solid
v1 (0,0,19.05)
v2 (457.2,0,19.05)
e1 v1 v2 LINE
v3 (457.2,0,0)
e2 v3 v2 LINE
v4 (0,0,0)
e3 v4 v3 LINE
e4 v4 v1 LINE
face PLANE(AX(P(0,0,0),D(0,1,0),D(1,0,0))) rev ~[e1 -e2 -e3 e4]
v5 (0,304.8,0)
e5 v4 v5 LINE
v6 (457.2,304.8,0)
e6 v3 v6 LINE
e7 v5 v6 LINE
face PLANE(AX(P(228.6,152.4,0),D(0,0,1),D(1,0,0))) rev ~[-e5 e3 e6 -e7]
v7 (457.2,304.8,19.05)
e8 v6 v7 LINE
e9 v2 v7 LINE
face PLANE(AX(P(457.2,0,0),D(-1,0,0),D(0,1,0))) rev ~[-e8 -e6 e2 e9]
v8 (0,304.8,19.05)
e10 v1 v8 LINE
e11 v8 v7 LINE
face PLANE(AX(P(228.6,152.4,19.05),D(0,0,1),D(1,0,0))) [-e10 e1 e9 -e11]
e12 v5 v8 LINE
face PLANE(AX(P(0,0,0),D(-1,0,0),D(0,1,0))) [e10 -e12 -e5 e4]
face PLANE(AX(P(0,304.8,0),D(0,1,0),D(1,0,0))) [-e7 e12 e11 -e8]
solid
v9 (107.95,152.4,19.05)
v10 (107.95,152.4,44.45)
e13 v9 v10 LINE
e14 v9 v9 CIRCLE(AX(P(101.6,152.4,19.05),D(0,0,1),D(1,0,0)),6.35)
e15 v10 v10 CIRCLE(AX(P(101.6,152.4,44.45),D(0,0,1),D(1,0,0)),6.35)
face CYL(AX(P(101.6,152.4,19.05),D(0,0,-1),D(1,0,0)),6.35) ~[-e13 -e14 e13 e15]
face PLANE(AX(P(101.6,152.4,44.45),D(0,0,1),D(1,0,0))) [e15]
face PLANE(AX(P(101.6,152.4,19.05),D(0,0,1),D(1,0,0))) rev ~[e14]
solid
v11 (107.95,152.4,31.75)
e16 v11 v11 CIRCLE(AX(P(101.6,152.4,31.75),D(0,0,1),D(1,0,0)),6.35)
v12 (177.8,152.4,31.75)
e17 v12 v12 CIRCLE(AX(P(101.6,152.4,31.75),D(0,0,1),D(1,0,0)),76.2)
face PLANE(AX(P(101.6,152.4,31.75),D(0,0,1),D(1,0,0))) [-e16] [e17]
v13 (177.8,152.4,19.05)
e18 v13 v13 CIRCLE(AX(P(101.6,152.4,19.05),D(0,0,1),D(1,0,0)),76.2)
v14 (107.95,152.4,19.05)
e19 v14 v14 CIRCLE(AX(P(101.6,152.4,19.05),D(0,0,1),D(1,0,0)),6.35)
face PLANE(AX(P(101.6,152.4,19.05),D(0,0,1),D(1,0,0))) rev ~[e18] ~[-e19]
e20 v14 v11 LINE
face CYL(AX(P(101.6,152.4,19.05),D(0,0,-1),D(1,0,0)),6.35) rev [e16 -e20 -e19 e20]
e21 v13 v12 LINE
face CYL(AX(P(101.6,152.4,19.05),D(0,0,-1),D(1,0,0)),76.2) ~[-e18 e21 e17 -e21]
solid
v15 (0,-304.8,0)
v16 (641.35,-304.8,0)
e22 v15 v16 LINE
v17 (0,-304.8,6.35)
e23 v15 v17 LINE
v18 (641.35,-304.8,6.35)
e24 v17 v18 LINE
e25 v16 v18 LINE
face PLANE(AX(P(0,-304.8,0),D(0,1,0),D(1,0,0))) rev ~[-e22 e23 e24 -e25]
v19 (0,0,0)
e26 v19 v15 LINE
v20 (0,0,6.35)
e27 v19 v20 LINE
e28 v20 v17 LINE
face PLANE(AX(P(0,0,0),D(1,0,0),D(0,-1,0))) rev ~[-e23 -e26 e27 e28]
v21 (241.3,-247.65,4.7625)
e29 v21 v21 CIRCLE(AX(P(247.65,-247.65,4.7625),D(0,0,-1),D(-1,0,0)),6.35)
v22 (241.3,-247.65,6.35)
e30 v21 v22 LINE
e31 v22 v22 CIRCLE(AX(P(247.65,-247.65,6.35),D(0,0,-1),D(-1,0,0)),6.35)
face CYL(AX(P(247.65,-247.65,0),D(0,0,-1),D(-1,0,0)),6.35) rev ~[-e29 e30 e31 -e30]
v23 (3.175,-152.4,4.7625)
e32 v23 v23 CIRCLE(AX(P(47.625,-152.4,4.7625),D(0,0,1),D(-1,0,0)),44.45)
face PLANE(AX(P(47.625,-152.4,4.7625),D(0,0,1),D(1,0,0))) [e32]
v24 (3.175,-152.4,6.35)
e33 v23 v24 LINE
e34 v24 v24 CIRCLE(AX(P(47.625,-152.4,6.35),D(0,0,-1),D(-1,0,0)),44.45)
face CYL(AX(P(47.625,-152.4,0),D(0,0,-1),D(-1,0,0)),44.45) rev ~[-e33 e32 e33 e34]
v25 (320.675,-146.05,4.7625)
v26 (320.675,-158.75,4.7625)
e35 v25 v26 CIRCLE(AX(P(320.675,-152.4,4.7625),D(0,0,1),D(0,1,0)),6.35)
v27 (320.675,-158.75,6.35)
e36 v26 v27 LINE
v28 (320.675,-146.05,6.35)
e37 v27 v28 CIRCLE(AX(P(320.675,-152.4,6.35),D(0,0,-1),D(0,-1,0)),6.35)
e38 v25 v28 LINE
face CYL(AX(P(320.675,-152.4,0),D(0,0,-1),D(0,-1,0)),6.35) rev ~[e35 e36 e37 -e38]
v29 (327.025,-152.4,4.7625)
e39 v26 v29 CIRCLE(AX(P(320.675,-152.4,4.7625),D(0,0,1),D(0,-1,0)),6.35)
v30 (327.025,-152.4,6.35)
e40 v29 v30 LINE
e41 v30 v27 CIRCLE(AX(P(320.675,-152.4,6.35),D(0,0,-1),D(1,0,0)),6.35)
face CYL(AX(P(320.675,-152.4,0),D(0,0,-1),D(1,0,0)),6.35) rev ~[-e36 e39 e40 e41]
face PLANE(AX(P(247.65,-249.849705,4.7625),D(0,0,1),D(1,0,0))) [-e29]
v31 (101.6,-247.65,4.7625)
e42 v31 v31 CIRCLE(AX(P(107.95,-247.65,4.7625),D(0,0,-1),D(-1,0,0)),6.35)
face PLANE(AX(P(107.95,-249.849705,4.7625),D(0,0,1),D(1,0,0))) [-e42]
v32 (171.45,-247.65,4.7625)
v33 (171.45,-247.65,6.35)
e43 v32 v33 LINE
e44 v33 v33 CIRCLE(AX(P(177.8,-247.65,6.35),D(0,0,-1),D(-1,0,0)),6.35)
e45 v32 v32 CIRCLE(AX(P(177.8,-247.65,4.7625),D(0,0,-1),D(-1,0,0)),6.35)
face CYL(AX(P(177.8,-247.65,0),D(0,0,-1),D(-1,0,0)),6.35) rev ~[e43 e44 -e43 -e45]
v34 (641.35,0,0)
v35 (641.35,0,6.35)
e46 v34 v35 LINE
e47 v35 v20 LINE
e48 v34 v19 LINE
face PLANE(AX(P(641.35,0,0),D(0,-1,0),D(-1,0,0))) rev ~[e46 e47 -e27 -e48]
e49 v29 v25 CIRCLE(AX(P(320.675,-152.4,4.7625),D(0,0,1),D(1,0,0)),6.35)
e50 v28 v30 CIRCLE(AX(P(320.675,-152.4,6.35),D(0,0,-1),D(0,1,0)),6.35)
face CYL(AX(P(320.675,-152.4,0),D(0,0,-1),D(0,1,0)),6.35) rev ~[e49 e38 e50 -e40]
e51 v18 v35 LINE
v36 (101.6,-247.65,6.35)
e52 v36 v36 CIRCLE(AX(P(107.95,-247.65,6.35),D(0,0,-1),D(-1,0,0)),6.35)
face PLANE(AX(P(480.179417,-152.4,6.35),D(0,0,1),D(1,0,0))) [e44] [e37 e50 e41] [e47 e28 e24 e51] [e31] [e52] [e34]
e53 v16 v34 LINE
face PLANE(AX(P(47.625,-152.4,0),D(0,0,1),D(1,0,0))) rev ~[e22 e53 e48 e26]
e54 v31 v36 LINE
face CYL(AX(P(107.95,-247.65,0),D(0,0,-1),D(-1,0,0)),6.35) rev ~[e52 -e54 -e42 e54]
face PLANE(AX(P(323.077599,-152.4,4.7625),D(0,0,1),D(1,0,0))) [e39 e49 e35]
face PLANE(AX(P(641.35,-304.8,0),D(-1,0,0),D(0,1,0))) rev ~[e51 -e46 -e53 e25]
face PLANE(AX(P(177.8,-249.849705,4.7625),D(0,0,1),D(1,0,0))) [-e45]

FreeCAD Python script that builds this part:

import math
import FreeCAD as App
import Part
import Sketcher
from FreeCAD import Vector
Q = App.Units.Quantity


def add_polygon(sketch, points):
    """Adds a closed chain of lines whose ends are joined by coincident constraints."""
    first, n = sketch.GeometryCount, len(points)
    for a, b in zip(points, points[1:] + points[:1]):
        sketch.addGeometry(Part.LineSegment(App.Vector(*a, 0), App.Vector(*b, 0)), False)
    for i in range(n):
        sketch.addConstraint(Sketcher.Constraint("Coincident", first + i, 2, first + (i + 1) % n, 1))

doc = App.newDocument("Part")
body = doc.addObject("PartDesign::Body", "Body")

sketch1 = body.newObject("Sketcher::SketchObject", "Sketch")
sketch1.AttachmentSupport = (doc.getObject("XY_Plane"), [""])
sketch1.MapMode = "FlatFace"
add_polygon(sketch1, [(0, 304.8), (0, 0), (457.2, 0), (457.2, 304.8)])
sketch1.addConstraint([
    Sketcher.Constraint("Vertical", 0),
    Sketcher.Constraint("Horizontal", 1),
    Sketcher.Constraint("Vertical", 2),
    Sketcher.Constraint("Horizontal", 3),
    Sketcher.Constraint("Coincident", 0, 2, -1, 1),
    Sketcher.Constraint("DistanceX", 1, 1, 1, 2, Q("18 in")),
    Sketcher.Constraint("DistanceY", 0, 2, 0, 1, Q("12 in")),
])
pad1 = body.newObject("PartDesign::Pad", "Pad")
pad1.Profile = sketch1
pad1.Length = Q("0.75 in")
body2 = doc.addObject("PartDesign::Body", "Body001")

sketch2 = body2.newObject("Sketcher::SketchObject", "Sketch001")
sketch2.AttachmentSupport = (doc.getObject("XY_Plane001"), [""])
sketch2.MapMode = "FlatFace"
sketch2.AttachmentOffset = App.Placement(Vector(0, 0, 0.75 * 25.4), App.Rotation())
sketch2.addGeometry([
    Part.Circle(Vector(101.6, 152.4, 0), Vector(0, 0, 1), 76.2),
    Part.Circle(Vector(101.6, 152.4, 0), Vector(0, 0, 1), 6.35),
], False)
sketch2.addConstraint([
    Sketcher.Constraint("Coincident", 1, 3, 0, 3),
    Sketcher.Constraint("Diameter", 0, Q("6 in")),
    Sketcher.Constraint("Diameter", 1, Q("0.5 in")),
    Sketcher.Constraint("DistanceX", -1, 1, 0, 3, Q("4 in")),
    Sketcher.Constraint("DistanceY", -1, 1, 0, 3, Q("6 in")),
])
pad2 = body2.newObject("PartDesign::Pad", "Pad001")
pad2.Profile = sketch2
pad2.Length = Q("0.5 in")
body3 = doc.addObject("PartDesign::Body", "Body002")

sketch3 = body3.newObject("Sketcher::SketchObject", "Sketch002")
sketch3.AttachmentSupport = (doc.getObject("XY_Plane002"), [""])
sketch3.MapMode = "FlatFace"
sketch3.AttachmentOffset = App.Placement(Vector(0, 0, 0.75 * 25.4), App.Rotation())
sketch3.addGeometry(Part.Circle(Vector(101.6, 152.4, 0), Vector(0, 0, 1), 6.35), False)
sketch3.addConstraint([
    Sketcher.Constraint("Diameter", 0, Q("0.5 in")),
    Sketcher.Constraint("DistanceX", -1, 1, 0, 3, Q("4 in")),
    Sketcher.Constraint("DistanceY", -1, 1, 0, 3, Q("6 in")),
])
pad3 = body3.newObject("PartDesign::Pad", "Pad002")
pad3.Profile = sketch3
pad3.Length = Q("1 in")
body4 = doc.addObject("PartDesign::Body", "Body003")

sketch4 = body4.newObject("Sketcher::SketchObject", "Sketch003")
sketch4.AttachmentSupport = (doc.getObject("XY_Plane003"), [""])
sketch4.MapMode = "FlatFace"
add_polygon(sketch4, [(641.35, -304.8), (641.35, 0), (0, 0), (0, -304.8)])
sketch4.addGeometry(Part.Circle(Vector(107.95, -247.65, 0), Vector(0, 0, 1), 6.35), False)
sketch4.addGeometry(Part.Circle(Vector(177.8, -247.65, 0), Vector(0, 0, 1), 6.35), False)
sketch4.addGeometry(Part.Circle(Vector(247.65, -247.65, 0), Vector(0, 0, 1), 6.35), False)
sketch4.addGeometry(Part.Circle(Vector(47.625, -152.4, 0), Vector(0, 0, 1), 44.45), False)
sketch4.addGeometry(Part.ArcOfCircle(Part.Circle(Vector(320.675, -152.4, 0), Vector(0, 0, 1), 6.35), math.radians(-90), math.radians(0)), False)
sketch4.addGeometry(Part.ArcOfCircle(Part.Circle(Vector(320.675, -152.4, 0), Vector(0, 0, 1), 6.35), math.radians(90), math.radians(270)), False)
sketch4.addGeometry(Part.ArcOfCircle(Part.Circle(Vector(320.675, -152.4, 0), Vector(0, 0, 1), 6.35), math.radians(0), math.radians(90)), False)
sketch4.addConstraint([
    Sketcher.Constraint("Tangent", 8, 1, 9, 2),
    Sketcher.Constraint("Tangent", 9, 1, 10, 2),
    Sketcher.Constraint("Tangent", 10, 1, 8, 2),
    Sketcher.Constraint("Vertical", 0),
    Sketcher.Constraint("Horizontal", 1),
    Sketcher.Constraint("Vertical", 2),
    Sketcher.Constraint("Horizontal", 3),
    Sketcher.Constraint("Coincident", 1, 2, -1, 1),
    Sketcher.Constraint("Equal", 4, 5),
    Sketcher.Constraint("Equal", 5, 6),
    Sketcher.Constraint("Equal", 6, 8),
    Sketcher.Constraint("Horizontal", 4, 3, 5, 3),
    Sketcher.Constraint("Horizontal", 5, 3, 6, 3),
    Sketcher.Constraint("Horizontal", 7, 3, 8, 3),
    Sketcher.Constraint("Horizontal", 9, 3, 10, 1),
    Sketcher.Constraint("Vertical", 10, 3, 8, 1),
    Sketcher.Constraint("Vertical", 8, 1, 9, 1),
    Sketcher.Constraint("Diameter", 4, Q("0.5 in")),
    Sketcher.Constraint("Diameter", 7, Q("3.5 in")),
    Sketcher.Constraint("DistanceY", 0, 1, 0, 2, Q("12 in")),
    Sketcher.Constraint("DistanceX", -1, 1, 5, 3, Q("7 in")),
    Sketcher.Constraint("DistanceY", 7, 3, -1, 1, Q("6 in")),
    Sketcher.Constraint("DistanceY", 6, 3, 9, 1, Q("4 in")),
    Sketcher.Constraint("DistanceX", 1, 2, 1, 1, Q("25.25 in")),
    Sketcher.Constraint("DistanceX", 4, 3, 6, 3, Q("5.5 in")),
    Sketcher.Constraint("DistanceX", 6, 3, 0, 2, Q("15.5 in")),
    Sketcher.Constraint("DistanceX", 7, 3, 8, 3, Q("10.75 in")),
    Sketcher.Constraint("DistanceX", -1, 1, 7, 3, Q("1.875 in")),
])
pad4 = body4.newObject("PartDesign::Pad", "Pad003")
pad4.Profile = sketch4
pad4.Length = Q("0.25 in")

sketch5 = body4.newObject("Sketcher::SketchObject", "Sketch004")
sketch5.AttachmentSupport = (doc.getObject("XY_Plane003"), [""])
sketch5.MapMode = "FlatFace"
sketch5.addGeometry([
    Part.Circle(Vector(47.625, -152.4, 0), Vector(0, 0, 1), 44.45),
    Part.Circle(Vector(107.95, -247.65, 0), Vector(0, 0, 1), 6.35),
    Part.Circle(Vector(177.8, -247.65, 0), Vector(0, 0, 1), 6.35),
    Part.Circle(Vector(247.65, -247.65, 0), Vector(0, 0, 1), 6.35),
    Part.ArcOfCircle(Part.Circle(Vector(320.675, -152.4, 0), Vector(0, 0, 1), 6.35), math.radians(0), math.radians(90)),
    Part.ArcOfCircle(Part.Circle(Vector(320.675, -152.4, 0), Vector(0, 0, 1), 6.35), math.radians(90), math.radians(270)),
    Part.ArcOfCircle(Part.Circle(Vector(320.675, -152.4, 0), Vector(0, 0, 1), 6.35), math.radians(-90), math.radians(0)),
], False)
sketch5.addConstraint([
    Sketcher.Constraint("Tangent", 4, 2, 5, 1),
    Sketcher.Constraint("Tangent", 5, 2, 6, 1),
    Sketcher.Constraint("Tangent", 6, 2, 4, 1),
    Sketcher.Constraint("Equal", 1, 2),
    Sketcher.Constraint("Equal", 2, 3),
    Sketcher.Constraint("Equal", 3, 4),
    Sketcher.Constraint("Horizontal", 1, 3, 2, 3),
    Sketcher.Constraint("Horizontal", 2, 3, 3, 3),
    Sketcher.Constraint("Horizontal", 0, 3, 4, 3),
    Sketcher.Constraint("Horizontal", 5, 3, 6, 2),
    Sketcher.Constraint("Vertical", 6, 3, 4, 2),
    Sketcher.Constraint("Vertical", 4, 2, 5, 2),
    Sketcher.Constraint("Diameter", 0, Q("3.5 in")),
    Sketcher.Constraint("Diameter", 1, Q("0.5 in")),
    Sketcher.Constraint("DistanceY", 0, 3, -1, 1, Q("6 in")),
    Sketcher.Constraint("DistanceX", -1, 1, 2, 3, Q("7 in")),
    Sketcher.Constraint("DistanceY", 3, 3, 4, 2, Q("4 in")),
    Sketcher.Constraint("DistanceX", 1, 3, 3, 3, Q("5.5 in")),
    Sketcher.Constraint("DistanceX", -1, 1, 1, 3, Q("4.25 in")),
    Sketcher.Constraint("DistanceX", 0, 3, 4, 3, Q("10.75 in")),
    Sketcher.Constraint("DistanceX", -1, 1, 0, 3, Q("1.875 in")),
])
pad5 = body4.newObject("PartDesign::Pad", "Pad004")
pad5.Profile = sketch5
pad5.Length = Q("0.1875 in")

doc.recompute()
